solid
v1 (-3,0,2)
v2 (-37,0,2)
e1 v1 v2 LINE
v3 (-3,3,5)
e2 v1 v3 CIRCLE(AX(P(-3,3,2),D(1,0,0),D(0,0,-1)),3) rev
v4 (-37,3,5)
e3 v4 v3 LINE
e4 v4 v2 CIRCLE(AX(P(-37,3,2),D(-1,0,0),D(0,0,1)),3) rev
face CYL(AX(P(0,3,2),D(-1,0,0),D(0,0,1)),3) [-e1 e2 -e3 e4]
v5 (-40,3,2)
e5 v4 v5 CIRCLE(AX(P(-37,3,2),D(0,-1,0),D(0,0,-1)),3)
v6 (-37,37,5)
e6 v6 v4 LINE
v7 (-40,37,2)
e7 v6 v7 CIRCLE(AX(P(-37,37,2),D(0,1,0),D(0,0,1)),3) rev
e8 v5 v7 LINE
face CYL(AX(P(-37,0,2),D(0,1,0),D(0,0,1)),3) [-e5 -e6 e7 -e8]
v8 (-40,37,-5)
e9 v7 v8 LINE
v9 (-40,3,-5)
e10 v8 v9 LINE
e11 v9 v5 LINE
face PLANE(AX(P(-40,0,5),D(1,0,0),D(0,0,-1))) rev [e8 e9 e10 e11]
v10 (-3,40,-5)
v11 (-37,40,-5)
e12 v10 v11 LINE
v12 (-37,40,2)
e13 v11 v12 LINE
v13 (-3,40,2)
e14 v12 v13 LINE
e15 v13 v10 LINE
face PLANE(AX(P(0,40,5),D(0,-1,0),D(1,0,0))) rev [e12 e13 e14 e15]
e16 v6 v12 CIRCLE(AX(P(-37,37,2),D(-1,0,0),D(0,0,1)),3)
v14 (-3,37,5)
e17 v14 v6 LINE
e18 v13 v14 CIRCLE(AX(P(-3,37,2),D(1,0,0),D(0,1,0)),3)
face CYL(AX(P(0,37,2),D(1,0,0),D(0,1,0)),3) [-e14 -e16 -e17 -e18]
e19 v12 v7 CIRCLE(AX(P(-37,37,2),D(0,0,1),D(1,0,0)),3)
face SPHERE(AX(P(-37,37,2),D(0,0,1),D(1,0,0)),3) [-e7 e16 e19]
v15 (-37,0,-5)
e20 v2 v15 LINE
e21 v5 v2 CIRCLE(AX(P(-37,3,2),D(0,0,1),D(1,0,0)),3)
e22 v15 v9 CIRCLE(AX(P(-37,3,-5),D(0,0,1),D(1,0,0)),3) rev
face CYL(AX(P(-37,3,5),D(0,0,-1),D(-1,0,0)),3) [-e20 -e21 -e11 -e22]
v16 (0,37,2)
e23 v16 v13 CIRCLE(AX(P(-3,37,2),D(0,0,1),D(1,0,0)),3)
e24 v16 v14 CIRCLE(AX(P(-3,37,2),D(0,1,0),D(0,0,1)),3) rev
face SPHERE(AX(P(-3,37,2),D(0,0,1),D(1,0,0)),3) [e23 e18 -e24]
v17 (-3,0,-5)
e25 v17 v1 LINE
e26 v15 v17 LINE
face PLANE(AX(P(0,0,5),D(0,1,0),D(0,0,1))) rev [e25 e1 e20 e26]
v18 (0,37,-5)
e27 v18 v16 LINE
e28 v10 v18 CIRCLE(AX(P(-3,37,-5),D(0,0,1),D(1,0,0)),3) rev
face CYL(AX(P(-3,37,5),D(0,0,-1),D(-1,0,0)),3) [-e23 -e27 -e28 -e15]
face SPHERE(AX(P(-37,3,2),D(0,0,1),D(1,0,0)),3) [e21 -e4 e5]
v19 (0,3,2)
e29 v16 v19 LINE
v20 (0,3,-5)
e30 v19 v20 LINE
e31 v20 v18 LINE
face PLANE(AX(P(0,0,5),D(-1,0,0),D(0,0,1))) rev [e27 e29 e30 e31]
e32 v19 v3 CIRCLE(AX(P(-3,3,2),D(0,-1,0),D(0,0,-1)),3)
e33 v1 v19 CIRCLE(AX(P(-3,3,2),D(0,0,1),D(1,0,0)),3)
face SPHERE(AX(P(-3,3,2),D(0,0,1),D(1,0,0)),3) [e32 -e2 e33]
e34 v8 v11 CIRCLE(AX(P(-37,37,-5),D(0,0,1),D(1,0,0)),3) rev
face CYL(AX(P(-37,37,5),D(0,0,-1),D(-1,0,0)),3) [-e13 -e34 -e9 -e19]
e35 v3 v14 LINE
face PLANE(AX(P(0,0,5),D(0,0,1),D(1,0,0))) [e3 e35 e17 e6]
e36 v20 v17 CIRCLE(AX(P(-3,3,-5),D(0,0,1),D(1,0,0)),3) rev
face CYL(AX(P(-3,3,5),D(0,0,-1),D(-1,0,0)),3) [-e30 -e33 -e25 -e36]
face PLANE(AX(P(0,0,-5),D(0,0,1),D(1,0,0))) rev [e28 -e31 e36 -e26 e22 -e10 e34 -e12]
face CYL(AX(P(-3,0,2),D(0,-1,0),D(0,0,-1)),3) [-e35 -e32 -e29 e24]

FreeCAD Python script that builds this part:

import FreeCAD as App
import Part
import Sketcher

V = App.Vector
Q = App.Units.Quantity


def edges_at(feature, points):
    """Names of the edges that pass closest to the given points."""
    edges = feature.Shape.Edges
    near = lambda p: min(range(len(edges)), key=lambda i: edges[i].distToShape(Part.Vertex(*p))[0])
    return sorted({f"Edge{near(p) + 1}" for p in points})


def add_polygon(sketch, points):
    """Adds a closed chain of lines whose ends are joined by coincident constraints."""
    first, n = sketch.GeometryCount, len(points)
    for a, b in zip(points, points[1:] + points[:1]):
        sketch.addGeometry(Part.LineSegment(App.Vector(*a, 0), App.Vector(*b, 0)), False)
    for i in range(n):
        sketch.addConstraint(Sketcher.Constraint("Coincident", first + i, 2, first + (i + 1) % n, 1))

doc = App.newDocument("Part")
body = doc.addObject("PartDesign::Body", "Body")

# Sketch on XY plane
sketch1 = doc.addObject("Sketcher::SketchObject", "Sketch")
body.addObject(sketch1)
sketch1.AttachmentSupport = (doc.XY_Plane, [""])
sketch1.MapMode = "FlatFace"
add_polygon(sketch1, [(-40, 40), (-40, 0), (0, 0), (0, 40)])  # lines 0-3
sketch1.addConstraint([
    Sketcher.Constraint("Vertical", 0),
    Sketcher.Constraint("Horizontal", 1),
    Sketcher.Constraint("Vertical", 2),
    Sketcher.Constraint("Horizontal", 3),
    Sketcher.Constraint("Coincident", 1, 2, -1, 1),
    Sketcher.Constraint("Equal", 3, 0),
    Sketcher.Constraint("DistanceX", 1, 1, 1, 2, Q("40 mm")),
])
pad1 = doc.addObject("PartDesign::Pad", "Pad")
body.addObject(pad1)
pad1.Profile = sketch1
pad1.Length = 10
pad1.Midplane = True
doc.recompute()

fillet = doc.addObject("PartDesign::Fillet", "Fillet")
body.addObject(fillet)
fillet.Base = (pad1, edges_at(pad1, [
    (-40, 20, 5),
    (-20, 0, 5),
    (0, 20, 5),
    (0, 0, 0),
    (-40, 0, 0),
    (-40, 40, 0),
    (0, 40, 0),
    (-20, 40, 5),
]))
fillet.Radius = 3

doc.recompute()
